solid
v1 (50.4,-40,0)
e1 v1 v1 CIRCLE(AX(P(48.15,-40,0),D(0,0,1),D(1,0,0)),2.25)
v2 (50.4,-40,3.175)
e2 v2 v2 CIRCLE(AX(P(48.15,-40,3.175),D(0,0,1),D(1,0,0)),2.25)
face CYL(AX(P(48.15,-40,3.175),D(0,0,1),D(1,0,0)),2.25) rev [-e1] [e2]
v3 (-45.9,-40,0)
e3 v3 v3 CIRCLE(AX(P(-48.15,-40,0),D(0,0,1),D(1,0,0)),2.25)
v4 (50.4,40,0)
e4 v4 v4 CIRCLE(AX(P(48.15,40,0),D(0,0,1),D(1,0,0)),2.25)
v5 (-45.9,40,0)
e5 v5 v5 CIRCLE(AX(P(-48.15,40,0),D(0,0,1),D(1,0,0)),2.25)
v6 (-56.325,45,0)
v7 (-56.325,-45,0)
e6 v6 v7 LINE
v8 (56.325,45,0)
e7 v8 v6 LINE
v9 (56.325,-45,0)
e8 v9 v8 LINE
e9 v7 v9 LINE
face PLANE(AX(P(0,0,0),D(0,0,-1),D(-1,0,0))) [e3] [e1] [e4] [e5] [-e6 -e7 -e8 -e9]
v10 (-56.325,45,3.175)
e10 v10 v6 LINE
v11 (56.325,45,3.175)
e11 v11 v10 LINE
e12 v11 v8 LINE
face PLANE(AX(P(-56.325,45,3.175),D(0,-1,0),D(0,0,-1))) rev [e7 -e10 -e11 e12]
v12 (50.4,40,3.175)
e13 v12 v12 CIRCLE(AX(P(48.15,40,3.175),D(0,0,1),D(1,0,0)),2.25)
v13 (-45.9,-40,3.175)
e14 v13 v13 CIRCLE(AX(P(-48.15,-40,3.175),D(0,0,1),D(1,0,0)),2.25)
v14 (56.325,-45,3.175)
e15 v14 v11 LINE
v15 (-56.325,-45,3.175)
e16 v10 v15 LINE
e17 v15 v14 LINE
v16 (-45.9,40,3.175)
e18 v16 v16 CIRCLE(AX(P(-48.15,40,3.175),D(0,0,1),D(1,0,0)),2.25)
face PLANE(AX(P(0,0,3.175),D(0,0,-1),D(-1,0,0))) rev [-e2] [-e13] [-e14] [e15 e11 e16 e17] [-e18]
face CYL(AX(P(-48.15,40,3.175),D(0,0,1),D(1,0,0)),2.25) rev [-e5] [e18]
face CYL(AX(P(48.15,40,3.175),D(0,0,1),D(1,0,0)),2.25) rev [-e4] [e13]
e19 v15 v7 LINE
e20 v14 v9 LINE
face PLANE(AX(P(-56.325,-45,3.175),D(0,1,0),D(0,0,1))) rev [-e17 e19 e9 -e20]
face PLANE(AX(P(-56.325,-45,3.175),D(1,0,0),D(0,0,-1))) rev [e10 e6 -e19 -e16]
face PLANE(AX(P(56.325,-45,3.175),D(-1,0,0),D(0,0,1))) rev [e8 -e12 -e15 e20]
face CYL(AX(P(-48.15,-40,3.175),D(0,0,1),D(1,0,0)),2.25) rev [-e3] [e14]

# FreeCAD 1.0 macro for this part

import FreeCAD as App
import Part
import Sketcher
Q = App.Units.Quantity

doc = App.newDocument("Part")
body = doc.addObject("PartDesign::Body", "Body")

# Sketch on XY plane
sketch1 = body.newObject("Sketcher::SketchObject", "Sketch")
sketch1.AttachmentSupport = (doc.getObject("XY_Plane"), [""])
sketch1.MapMode = "FlatFace"
sketch1.addGeometry([
    Part.LineSegment(App.Vector(-56.325, 45, 0), App.Vector(-56.325, -45, 0)),
    Part.LineSegment(App.Vector(-56.325, -45, 0), App.Vector(56.325, -45, 0)),
    Part.LineSegment(App.Vector(56.325, -45, 0), App.Vector(56.325, 45, 0)),
    Part.LineSegment(App.Vector(56.325, 45, 0), App.Vector(-56.325, 45, 0)),
], False)
sketch1.addConstraint([
    Sketcher.Constraint("Coincident", 0, 2, 1, 1),
    Sketcher.Constraint("Coincident", 1, 2, 2, 1),
    Sketcher.Constraint("Coincident", 2, 2, 3, 1),
    Sketcher.Constraint("Coincident", 3, 2, 0, 1),
    Sketcher.Constraint("Vertical", 0),
    Sketcher.Constraint("Horizontal", 1),
    Sketcher.Constraint("Vertical", 2),
    Sketcher.Constraint("Horizontal", 3),
    Sketcher.Constraint("Symmetric", 0, 2, 2, 2, -1, 1),
    Sketcher.Constraint("DistanceY", 0, 2, 0, 1, Q("90 mm")),
    Sketcher.Constraint("DistanceX", 1, 1, 1, 2, Q("112.65 mm")),
])
pad1 = body.newObject("PartDesign::Pad", "Pad")
pad1.Profile = sketch1
pad1.Length = 3.175

# Sketch on XY plane
sketch2 = body.newObject("Sketcher::SketchObject", "Sketch001")
sketch2.AttachmentSupport = (doc.getObject("XY_Plane"), [""])
sketch2.MapMode = "FlatFace"
sketch2.AttachmentOffset = App.Placement(App.Vector(0, 0, 3.175), App.Rotation())
sketch2.addGeometry(Part.Circle(App.Vector(-48.15, -40, 0), App.Vector(0, 0, 1), 2.25), False)
sketch2.addConstraint([
    Sketcher.Constraint("Diameter", 0, Q("4.5 mm")),
    Sketcher.Constraint("DistanceY", 0, 3, -1, 1, Q("40 mm")),
    Sketcher.Constraint("DistanceX", 0, 3, -1, 1, Q("48.15 mm")),
])
doc.recompute()
hole = body.newObject("PartDesign::Hole", "Hole")
hole.Profile = sketch2
hole.ThreadType = "None"
hole.Diameter = 4.5
hole.DepthType = "ThroughAll"
doc.recompute()

mirrored = body.newObject("PartDesign::Mirrored", "Mirrored")
mirrored.Originals = [hole]
mirrored.MirrorPlane = (doc.getObject("YZ_Plane"), [""])
body.Tip = mirrored
doc.recompute()

mirrored2 = body.newObject("PartDesign::Mirrored", "Mirrored001")
mirrored2.Originals = [hole]
mirrored2.MirrorPlane = (doc.getObject("XZ_Plane"), [""])
body.Tip = mirrored2

# Sketch on XY plane
sketch3 = body.newObject("Sketcher::SketchObject", "Sketch002")
sketch3.AttachmentSupport = (doc.getObject("XY_Plane"), [""])
sketch3.MapMode = "FlatFace"
sketch3.AttachmentOffset = App.Placement(App.Vector(0, 0, 3.175), App.Rotation())
sketch3.addGeometry(Part.Circle(App.Vector(48.15, 40, 0), App.Vector(0, 0, 1), 2.25), False)
sketch3.addConstraint([
    Sketcher.Constraint("Diameter", 0, Q("4.5 mm")),
    Sketcher.Constraint("DistanceY", -1, 1, 0, 3, Q("40 mm")),
    Sketcher.Constraint("DistanceX", -1, 1, 0, 3, Q("48.15 mm")),
])
doc.recompute()
hole2 = body.newObject("PartDesign::Hole", "Hole001")
hole2.Profile = sketch3
hole2.ThreadType = "None"
hole2.Diameter = 4.5
hole2.DepthType = "ThroughAll"

doc.recompute()
